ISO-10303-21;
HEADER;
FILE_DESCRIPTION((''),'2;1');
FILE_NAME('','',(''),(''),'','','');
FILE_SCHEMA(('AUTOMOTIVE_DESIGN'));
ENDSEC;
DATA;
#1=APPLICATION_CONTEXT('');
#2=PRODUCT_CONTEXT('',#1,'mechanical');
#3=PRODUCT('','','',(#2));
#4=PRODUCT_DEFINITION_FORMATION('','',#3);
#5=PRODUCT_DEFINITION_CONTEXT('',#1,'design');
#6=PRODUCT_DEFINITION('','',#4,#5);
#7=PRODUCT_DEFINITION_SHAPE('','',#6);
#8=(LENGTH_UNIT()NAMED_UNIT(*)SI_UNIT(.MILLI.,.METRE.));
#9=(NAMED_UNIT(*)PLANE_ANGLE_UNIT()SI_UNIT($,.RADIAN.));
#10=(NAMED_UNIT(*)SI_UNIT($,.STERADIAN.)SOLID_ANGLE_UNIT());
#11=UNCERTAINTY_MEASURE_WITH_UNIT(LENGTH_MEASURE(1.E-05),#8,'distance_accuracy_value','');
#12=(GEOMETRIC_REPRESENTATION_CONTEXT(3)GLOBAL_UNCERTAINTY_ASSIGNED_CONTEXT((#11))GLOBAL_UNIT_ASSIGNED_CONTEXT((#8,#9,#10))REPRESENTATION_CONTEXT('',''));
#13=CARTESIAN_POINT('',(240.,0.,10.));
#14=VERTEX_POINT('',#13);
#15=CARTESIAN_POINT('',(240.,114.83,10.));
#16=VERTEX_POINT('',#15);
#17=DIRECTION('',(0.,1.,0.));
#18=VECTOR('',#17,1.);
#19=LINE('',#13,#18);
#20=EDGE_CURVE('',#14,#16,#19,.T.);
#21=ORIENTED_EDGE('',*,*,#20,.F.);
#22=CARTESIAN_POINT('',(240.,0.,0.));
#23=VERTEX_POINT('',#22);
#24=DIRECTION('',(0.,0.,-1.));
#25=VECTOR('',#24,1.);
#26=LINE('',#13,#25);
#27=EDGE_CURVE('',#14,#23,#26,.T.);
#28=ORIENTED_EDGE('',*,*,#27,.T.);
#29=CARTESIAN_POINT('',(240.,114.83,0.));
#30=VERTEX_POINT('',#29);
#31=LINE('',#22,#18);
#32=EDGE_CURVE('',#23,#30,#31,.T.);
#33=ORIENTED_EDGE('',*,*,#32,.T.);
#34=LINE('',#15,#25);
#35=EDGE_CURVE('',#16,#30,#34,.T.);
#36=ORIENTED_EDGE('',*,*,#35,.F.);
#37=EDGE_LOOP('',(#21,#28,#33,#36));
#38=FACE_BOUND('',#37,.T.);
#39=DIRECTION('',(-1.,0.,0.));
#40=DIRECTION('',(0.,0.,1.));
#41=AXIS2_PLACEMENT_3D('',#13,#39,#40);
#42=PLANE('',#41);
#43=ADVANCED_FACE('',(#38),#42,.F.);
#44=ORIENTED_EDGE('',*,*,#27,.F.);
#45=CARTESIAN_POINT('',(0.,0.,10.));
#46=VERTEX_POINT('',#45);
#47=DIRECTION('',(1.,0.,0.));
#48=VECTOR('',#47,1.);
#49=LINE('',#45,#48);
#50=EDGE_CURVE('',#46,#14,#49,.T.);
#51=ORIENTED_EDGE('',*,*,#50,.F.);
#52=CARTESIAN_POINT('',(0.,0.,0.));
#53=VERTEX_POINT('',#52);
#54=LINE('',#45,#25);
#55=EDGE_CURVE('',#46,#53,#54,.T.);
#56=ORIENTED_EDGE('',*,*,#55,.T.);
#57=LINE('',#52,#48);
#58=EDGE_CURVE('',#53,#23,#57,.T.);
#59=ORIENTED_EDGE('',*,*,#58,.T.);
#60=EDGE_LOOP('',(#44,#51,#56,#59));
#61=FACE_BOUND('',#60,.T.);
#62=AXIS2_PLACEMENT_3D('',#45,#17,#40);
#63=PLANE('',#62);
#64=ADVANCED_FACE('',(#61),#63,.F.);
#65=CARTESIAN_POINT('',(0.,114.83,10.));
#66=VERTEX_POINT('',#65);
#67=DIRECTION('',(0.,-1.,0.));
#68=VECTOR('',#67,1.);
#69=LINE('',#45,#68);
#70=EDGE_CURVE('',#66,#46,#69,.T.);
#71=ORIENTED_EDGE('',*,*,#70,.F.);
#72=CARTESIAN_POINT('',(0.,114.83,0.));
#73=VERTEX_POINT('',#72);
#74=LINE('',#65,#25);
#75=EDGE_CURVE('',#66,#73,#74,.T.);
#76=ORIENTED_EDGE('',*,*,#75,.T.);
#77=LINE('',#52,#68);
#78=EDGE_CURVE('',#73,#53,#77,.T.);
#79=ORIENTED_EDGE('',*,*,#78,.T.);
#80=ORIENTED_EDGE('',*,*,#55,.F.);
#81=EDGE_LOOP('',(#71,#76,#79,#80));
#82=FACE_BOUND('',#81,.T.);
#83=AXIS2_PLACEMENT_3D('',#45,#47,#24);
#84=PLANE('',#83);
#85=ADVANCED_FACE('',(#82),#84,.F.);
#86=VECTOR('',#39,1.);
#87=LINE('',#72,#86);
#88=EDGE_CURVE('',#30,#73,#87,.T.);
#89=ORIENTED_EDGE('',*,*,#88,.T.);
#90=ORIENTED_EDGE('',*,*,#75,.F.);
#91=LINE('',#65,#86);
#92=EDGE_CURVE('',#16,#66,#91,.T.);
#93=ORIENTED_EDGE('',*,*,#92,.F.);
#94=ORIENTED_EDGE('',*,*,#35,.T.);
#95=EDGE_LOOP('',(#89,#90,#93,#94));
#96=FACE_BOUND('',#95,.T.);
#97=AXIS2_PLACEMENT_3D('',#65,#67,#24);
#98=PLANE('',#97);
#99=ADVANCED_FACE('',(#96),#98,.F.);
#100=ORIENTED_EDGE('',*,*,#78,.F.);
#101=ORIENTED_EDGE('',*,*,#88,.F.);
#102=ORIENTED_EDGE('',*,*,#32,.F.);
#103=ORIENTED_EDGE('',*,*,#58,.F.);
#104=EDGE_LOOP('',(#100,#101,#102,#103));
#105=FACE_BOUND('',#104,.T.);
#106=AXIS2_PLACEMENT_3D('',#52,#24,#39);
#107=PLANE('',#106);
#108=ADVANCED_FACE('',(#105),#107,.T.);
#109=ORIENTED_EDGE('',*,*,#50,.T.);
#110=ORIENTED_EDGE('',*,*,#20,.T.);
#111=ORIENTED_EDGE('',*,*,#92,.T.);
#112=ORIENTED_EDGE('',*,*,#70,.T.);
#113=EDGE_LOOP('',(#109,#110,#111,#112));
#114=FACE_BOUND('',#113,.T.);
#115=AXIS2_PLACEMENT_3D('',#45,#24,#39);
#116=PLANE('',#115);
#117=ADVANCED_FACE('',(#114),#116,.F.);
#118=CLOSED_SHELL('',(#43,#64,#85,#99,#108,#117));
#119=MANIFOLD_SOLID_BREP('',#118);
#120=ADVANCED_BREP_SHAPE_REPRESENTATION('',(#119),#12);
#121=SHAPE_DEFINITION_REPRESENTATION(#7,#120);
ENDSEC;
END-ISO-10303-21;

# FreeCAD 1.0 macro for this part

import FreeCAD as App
import Part
import Sketcher
from FreeCAD import Vector


def add_polygon(sketch, points):
    """Adds a closed chain of lines whose ends are joined by coincident constraints."""
    first, n = sketch.GeometryCount, len(points)
    for a, b in zip(points, points[1:] + points[:1]):
        sketch.addGeometry(Part.LineSegment(App.Vector(*a, 0), App.Vector(*b, 0)), False)
    for i in range(n):
        sketch.addConstraint(Sketcher.Constraint("Coincident", first + i, 2, first + (i + 1) % n, 1))

doc = App.newDocument("Part")
body = doc.addObject("PartDesign::Body", "Body")

# Sketch on XY plane
sketch1 = body.newObject("Sketcher::SketchObject", "Sketch")
sketch1.AttachmentSupport = (doc.getObject("XY_Plane"), [""])
sketch1.MapMode = "FlatFace"
add_polygon(sketch1, [(0, 115), (0, 0), (240, 0), (240, 115)])  # lines 0-3
sketch1.addConstraint([
    Sketcher.Constraint("Vertical", 0),
    Sketcher.Constraint("Horizontal", 1),
    Sketcher.Constraint("Vertical", 2),
    Sketcher.Constraint("Horizontal", 3),
    Sketcher.Constraint("Coincident", 0, 2, -1, 1),
    Sketcher.Constraint("DistanceX", 1, 1, 1, 2, 240.0),
    Sketcher.Constraint("DistanceY", 0, 2, 0, 1, 114.83),
])
pad1 = body.newObject("PartDesign::Pad", "Pad")
pad1.Profile = sketch1
pad1.Length = 10

doc.recompute()
